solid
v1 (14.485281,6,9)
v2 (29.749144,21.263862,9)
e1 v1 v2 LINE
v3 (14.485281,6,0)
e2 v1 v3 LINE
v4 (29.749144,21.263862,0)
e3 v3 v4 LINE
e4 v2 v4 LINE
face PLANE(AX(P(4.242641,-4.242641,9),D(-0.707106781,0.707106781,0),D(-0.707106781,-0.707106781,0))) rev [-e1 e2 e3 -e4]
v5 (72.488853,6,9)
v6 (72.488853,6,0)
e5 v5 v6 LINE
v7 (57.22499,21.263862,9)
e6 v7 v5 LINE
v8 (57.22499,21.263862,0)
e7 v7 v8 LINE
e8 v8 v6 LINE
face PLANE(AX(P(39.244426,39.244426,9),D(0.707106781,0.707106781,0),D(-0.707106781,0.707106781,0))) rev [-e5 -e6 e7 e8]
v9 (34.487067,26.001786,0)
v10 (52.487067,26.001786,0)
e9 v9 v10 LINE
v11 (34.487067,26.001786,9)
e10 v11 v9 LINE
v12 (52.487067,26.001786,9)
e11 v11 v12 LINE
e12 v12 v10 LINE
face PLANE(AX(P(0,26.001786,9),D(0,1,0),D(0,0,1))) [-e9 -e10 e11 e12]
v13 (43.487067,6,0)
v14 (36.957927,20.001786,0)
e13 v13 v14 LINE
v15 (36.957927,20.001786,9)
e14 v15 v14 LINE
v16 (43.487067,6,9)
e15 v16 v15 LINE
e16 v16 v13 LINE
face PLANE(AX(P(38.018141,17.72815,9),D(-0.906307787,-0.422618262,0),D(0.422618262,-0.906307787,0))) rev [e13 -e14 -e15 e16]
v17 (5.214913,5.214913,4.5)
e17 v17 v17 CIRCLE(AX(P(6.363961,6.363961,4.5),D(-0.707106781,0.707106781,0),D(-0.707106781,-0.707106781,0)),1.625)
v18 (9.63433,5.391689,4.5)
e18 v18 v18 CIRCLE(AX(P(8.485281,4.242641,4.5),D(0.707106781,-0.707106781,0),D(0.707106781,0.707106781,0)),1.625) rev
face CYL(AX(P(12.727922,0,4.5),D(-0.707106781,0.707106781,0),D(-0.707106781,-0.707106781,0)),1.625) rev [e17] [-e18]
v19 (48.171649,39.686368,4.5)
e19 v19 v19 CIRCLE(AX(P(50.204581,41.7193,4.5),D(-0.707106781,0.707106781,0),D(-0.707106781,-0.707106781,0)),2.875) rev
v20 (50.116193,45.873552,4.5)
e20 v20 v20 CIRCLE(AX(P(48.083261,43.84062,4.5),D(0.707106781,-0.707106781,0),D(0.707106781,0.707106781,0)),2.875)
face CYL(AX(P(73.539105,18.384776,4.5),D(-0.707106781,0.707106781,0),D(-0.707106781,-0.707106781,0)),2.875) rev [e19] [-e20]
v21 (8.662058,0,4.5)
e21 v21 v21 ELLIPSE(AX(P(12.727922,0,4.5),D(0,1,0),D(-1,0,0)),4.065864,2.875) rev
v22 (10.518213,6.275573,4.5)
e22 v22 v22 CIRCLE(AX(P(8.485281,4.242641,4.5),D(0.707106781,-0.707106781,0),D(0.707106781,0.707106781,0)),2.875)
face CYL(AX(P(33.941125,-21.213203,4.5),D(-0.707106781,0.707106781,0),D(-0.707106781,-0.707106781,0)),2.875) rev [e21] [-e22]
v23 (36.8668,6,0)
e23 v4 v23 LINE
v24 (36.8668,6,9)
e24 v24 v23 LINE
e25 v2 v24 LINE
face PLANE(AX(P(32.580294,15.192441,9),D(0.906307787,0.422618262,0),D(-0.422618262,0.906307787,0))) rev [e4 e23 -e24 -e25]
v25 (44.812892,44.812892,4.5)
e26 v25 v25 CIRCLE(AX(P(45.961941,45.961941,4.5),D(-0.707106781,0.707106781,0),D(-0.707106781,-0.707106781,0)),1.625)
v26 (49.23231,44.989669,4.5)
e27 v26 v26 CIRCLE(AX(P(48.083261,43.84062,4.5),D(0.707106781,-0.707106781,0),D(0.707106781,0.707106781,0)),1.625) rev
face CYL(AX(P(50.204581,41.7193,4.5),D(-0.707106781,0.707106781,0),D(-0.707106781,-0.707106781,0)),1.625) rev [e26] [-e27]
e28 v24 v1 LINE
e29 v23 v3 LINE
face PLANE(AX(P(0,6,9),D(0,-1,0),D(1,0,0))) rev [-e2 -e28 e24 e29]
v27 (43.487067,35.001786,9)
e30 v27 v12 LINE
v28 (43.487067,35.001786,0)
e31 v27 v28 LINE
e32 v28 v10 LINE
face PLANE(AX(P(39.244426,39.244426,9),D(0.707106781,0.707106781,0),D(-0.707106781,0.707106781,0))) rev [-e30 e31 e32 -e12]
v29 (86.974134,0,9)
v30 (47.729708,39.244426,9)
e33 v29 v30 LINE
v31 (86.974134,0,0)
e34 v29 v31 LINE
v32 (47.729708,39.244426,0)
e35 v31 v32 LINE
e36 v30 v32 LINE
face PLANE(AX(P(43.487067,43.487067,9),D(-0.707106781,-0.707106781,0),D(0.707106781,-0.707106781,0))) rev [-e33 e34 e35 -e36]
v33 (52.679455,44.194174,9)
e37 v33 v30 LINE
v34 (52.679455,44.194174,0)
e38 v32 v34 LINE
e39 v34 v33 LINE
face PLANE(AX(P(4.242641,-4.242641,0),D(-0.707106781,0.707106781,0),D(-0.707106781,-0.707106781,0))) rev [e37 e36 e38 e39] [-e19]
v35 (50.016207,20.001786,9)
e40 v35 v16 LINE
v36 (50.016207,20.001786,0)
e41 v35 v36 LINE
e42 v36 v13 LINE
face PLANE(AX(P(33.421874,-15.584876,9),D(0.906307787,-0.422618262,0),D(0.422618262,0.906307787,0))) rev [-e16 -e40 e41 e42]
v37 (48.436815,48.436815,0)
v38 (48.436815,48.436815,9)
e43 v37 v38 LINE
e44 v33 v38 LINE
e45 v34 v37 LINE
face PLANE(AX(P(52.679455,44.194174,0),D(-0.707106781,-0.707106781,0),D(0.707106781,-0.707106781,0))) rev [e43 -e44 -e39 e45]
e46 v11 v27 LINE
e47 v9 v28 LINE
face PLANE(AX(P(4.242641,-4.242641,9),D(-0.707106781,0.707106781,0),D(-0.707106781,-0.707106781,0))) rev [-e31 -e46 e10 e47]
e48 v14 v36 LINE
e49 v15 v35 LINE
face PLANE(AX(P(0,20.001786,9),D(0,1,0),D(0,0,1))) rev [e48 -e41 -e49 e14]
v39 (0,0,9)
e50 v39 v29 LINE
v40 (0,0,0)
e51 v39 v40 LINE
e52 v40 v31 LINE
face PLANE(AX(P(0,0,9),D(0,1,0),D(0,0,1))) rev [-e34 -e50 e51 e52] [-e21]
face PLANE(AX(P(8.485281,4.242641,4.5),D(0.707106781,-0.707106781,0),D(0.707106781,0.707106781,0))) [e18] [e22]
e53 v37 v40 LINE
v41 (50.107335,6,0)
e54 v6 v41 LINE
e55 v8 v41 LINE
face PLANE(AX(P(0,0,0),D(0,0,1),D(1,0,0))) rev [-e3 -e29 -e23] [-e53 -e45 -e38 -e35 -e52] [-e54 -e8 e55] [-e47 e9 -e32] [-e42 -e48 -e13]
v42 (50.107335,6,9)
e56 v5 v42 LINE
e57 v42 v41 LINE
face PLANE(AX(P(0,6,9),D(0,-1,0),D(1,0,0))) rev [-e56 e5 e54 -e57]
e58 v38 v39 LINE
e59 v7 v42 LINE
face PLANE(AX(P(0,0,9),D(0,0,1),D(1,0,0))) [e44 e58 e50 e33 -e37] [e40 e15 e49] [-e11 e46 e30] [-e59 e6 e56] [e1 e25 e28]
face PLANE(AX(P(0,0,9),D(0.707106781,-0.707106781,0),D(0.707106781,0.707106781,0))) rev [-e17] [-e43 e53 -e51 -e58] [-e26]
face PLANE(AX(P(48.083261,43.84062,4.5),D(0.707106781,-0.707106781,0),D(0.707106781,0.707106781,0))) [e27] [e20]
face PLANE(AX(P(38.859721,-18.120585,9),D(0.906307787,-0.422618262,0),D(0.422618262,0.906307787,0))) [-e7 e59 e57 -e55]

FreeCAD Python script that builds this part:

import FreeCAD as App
import Part
import Sketcher
Q = App.Units.Quantity


def add_polygon(sketch, points):
    """Adds a closed chain of lines whose ends are joined by coincident constraints."""
    first, n = sketch.GeometryCount, len(points)
    for a, b in zip(points, points[1:] + points[:1]):
        sketch.addGeometry(Part.LineSegment(App.Vector(*a, 0), App.Vector(*b, 0)), False)
    for i in range(n):
        sketch.addConstraint(Sketcher.Constraint("Coincident", first + i, 2, first + (i + 1) % n, 1))

doc = App.newDocument("Part")
params = doc.addObject("Spreadsheet::Sheet", "Params")
for row, (alias, value) in enumerate([
    ("sketch1_width", "18 mm"),
    ("sketch1_length", "61.5 mm"),
    ("pad1_length", "9 mm"),
    ("sketch2_diameter", "3.25 mm"),
    ("pocket1_length", "9 mm"),
    ("sketch3_diameter", "3.25 mm"),
    ("sketch3_width", "9 mm"),
    ("sketch3_height", "7 mm"),
    ("pad2_length", "6 mm"),
    ("sketch4_diameter", "5.75 mm"),
    ("pocket2_length", "33 mm"),
    ("pocket2_length2", "3 mm"),
], start=1):
    params.set(f"A{row}", alias)
    params.set(f"B{row}", "=" + value)
    params.setAlias(f"B{row}", alias)

body = doc.addObject("PartDesign::Body", "Body")

sketch1 = doc.addObject("Sketcher::SketchObject", "Sketch")
body.addObject(sketch1)
sketch1.AttachmentSupport = (doc.XY_Plane, [""])
sketch1.MapMode = "FlatFace"
add_polygon(sketch1, [(87, 0), (43, 43), (0, 0)])
add_polygon(sketch1, [(14, 6), (30, 21), (37, 6)])
add_polygon(sketch1, [(34, 26), (43, 35), (52, 26)])
add_polygon(sketch1, [(72, 6), (50, 6), (57, 21)])
add_polygon(sketch1, [(43, 6), (37, 20), (50, 20)])
sketch1.addConstraint([
    Sketcher.Constraint("Horizontal", 2),
    Sketcher.Constraint("Horizontal", 5),
    Sketcher.Constraint("Horizontal", 8),
    Sketcher.Constraint("Horizontal", 9),
    Sketcher.Constraint("Horizontal", 13),
    Sketcher.Constraint("Coincident", 1, 2, -1, 1),
    Sketcher.Constraint("Perpendicular", 0, 1),
    Sketcher.Constraint("Parallel", 1, 3),
    Sketcher.Constraint("Parallel", 3, 6),
    Sketcher.Constraint("Perpendicular", 6, 7),
    Sketcher.Constraint("Parallel", 7, 11),
    Sketcher.Constraint("Parallel", 4, 12),
    Sketcher.Constraint("Parallel", 10, 14),
    Sketcher.Constraint("Horizontal", 5, 2, 9, 2),
    Sketcher.Constraint("Horizontal", 3, 2, 10, 2),
    Sketcher.Constraint("Horizontal", 11, 2, 14, 2),
    Sketcher.Constraint("Vertical", 0, 2, 6, 2),
    Sketcher.Constraint("Vertical", 6, 2, 14, 2),
    Sketcher.Constraint("Equal", 5, 9),
    Sketcher.Constraint("Equal", 0, 1),
    Sketcher.Constraint("DistanceX", 8, 2, 8, 1, Q("18 mm")),
    Sketcher.Constraint("Angle", 4, Q("-65 deg")),
    Sketcher.Constraint("DistanceY", -1, 1, 4, 2, Q("6 mm")),
    Sketcher.Constraint("DistanceY", 12, 2, 8, 2, Q("6 mm")),
    Sketcher.Constraint("Distance", 0, Q("61.5 mm")),
    Sketcher.Constraint("DistanceX", 5, 2, 5, 1, Q("22.381518 mm")),
    Sketcher.Constraint("DistanceX", 13, 1, 13, 2, Q("13.05828 mm")),
    Sketcher.Constraint("DistanceX", -1, 1, 4, 2, Q("36.8668 mm")),
    Sketcher.Constraint("DistanceX", -1, 1, 10, 2, Q("57.22499 mm")),
])
sketch1.setExpression("Constraints[35]", "Params.sketch1_width")
sketch1.setExpression("Constraints[39]", "Params.sketch1_length")
pad1 = doc.addObject("PartDesign::Pad", "Pad")
body.addObject(pad1)
pad1.Profile = sketch1
pad1.setExpression("Length", "Params.pad1_length")

sketch2 = doc.addObject("Sketcher::SketchObject", "Sketch001")
body.addObject(sketch2)
sketch2.Placement = App.Placement(App.Vector(0, 0, 0), App.Rotation(App.Vector(0, 0, 1), App.Vector(0.707106781, 0.707106781, 0), App.Vector(-0.707106781, 0.707106781, 0), "ZXY"))
sketch2.addGeometry(Part.Circle(App.Vector(4.5, 9, 0), App.Vector(0, 0, 1), 1.6), False)
sketch2.addConstraint([
    Sketcher.Constraint("Diameter", 0, Q("3.25 mm")),
    Sketcher.Constraint("DistanceY", -1, 1, 0, 3, Q("9 mm")),
    Sketcher.Constraint("DistanceX", -1, 1, 0, 3, Q("4.5 mm")),
])
sketch2.setExpression("Constraints[0]", "Params.sketch2_diameter")
pocket1 = doc.addObject("PartDesign::Pocket", "Pocket")
body.addObject(pocket1)
pocket1.Profile = sketch2
pocket1.setExpression("Length", "Params.pocket1_length")

sketch3 = doc.addObject("Sketcher::SketchObject", "Sketch002")
body.addObject(sketch3)
sketch3.Placement = App.Placement(App.Vector(0, 0, 0), App.Rotation(App.Vector(0, 0, 1), App.Vector(0.707106781, 0.707106781, 0), App.Vector(-0.707106781, 0.707106781, 0), "ZXY"))
add_polygon(sketch3, [(0, 68.5), (0, 61.5), (9, 61.5), (9, 68.5)])
sketch3.addGeometry(Part.Circle(App.Vector(4.5, 65, 0), App.Vector(0, 0, 1), 1.6), False)
sketch3.addConstraint([
    Sketcher.Constraint("Vertical", 0),
    Sketcher.Constraint("Horizontal", 1),
    Sketcher.Constraint("Vertical", 2),
    Sketcher.Constraint("Horizontal", 3),
    Sketcher.Constraint("PointOnObject", 0, 2, -2),
    Sketcher.Constraint("Diameter", 4, Q("3.25 mm")),
    Sketcher.Constraint("DistanceX", 1, 1, 1, 2, Q("9 mm")),
    Sketcher.Constraint("DistanceY", 0, 2, 0, 1, Q("7 mm")),
    Sketcher.Constraint("DistanceY", -1, 1, 4, 3, Q("65 mm")),
    Sketcher.Constraint("DistanceX", -1, 1, 4, 3, Q("4.5 mm")),
    Sketcher.Constraint("DistanceY", -1, 1, 0, 2, Q("61.5 mm")),
])
sketch3.setExpression("Constraints[9]", "Params.sketch3_diameter")
sketch3.setExpression("Constraints[10]", "Params.sketch3_width")
sketch3.setExpression("Constraints[11]", "Params.sketch3_height")
pad2 = doc.addObject("PartDesign::Pad", "Pad001")
body.addObject(pad2)
pad2.Profile = sketch3
pad2.setExpression("Length", "Params.pad2_length")
pad2.Reversed = True

sketch4 = doc.addObject("Sketcher::SketchObject", "Sketch003")
body.addObject(sketch4)
sketch4.Placement = App.Placement(App.Vector(4.242641, -4.242641, 0), App.Rotation(App.Vector(0, 0, -1), App.Vector(0.707106781, 0.707106781, 0), App.Vector(0.707106781, -0.707106781, 0), "ZXY"))
sketch4.addGeometry([
    Part.Circle(App.Vector(-4.5, 65, 0), App.Vector(0, 0, 1), 2.9),
    Part.Circle(App.Vector(-4.5, 9, 0), App.Vector(0, 0, 1), 2.9),
], False)
sketch4.addConstraint([
    Sketcher.Constraint("Equal", 0, 1),
    Sketcher.Constraint("Vertical", 0, 3, 1, 3),
    Sketcher.Constraint("Diameter", 0, Q("5.75 mm")),
    Sketcher.Constraint("DistanceY", -1, 1, 0, 3, Q("65 mm")),
    Sketcher.Constraint("DistanceY", -1, 1, 1, 3, Q("9 mm")),
    Sketcher.Constraint("DistanceX", 0, 3, -1, 1, Q("4.5 mm")),
])
sketch4.setExpression("Constraints[2]", "Params.sketch4_diameter")
pocket2 = doc.addObject("PartDesign::Pocket", "Pocket001")
body.addObject(pocket2)
pocket2.Profile = sketch4
pocket2.Type = "TwoLengths"
pocket2.setExpression("Length", "Params.pocket2_length")
pocket2.setExpression("Length2", "Params.pocket2_length2")
pocket2.Reversed = True

doc.recompute()
